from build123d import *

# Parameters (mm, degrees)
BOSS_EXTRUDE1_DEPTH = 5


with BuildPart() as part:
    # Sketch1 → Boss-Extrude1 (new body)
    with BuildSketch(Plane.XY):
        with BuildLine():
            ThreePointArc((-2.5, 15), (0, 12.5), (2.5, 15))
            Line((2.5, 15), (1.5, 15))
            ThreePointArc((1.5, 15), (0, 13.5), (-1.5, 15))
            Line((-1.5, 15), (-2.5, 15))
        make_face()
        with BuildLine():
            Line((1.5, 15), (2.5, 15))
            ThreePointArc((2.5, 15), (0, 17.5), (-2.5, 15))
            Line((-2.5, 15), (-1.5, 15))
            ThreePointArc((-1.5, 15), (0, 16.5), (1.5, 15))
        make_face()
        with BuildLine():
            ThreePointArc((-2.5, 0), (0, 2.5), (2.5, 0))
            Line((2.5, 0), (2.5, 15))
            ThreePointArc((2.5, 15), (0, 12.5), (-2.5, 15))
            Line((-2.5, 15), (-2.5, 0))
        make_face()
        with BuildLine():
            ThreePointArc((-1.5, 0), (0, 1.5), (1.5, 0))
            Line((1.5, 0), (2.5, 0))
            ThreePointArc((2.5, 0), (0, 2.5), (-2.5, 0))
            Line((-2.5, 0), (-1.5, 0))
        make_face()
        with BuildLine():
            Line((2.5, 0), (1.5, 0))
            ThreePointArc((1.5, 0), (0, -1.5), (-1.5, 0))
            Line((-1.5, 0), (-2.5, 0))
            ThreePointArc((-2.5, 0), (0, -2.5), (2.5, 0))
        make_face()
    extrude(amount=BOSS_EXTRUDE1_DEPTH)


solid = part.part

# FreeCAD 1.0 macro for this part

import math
import FreeCAD as App
import Part
import Sketcher
Q = App.Units.Quantity

doc = App.newDocument("Part")
body = doc.addObject("PartDesign::Body", "Body")

# Sketch on XY plane
sketch1 = doc.addObject("Sketcher::SketchObject", "Sketch")
body.addObject(sketch1)
sketch1.AttachmentSupport = (doc.XY_Plane, [""])
sketch1.MapMode = "FlatFace"
sketch1.addGeometry(Part.LineSegment(App.Vector(-2.5, 15, 0), App.Vector(-2.5, 0, 0)), False)
sketch1.addGeometry(Part.ArcOfCircle(Part.Circle(App.Vector(0, 0, 0), App.Vector(0, 0, 1), 2.5), math.radians(180), math.radians(360)), False)
sketch1.addGeometry(Part.LineSegment(App.Vector(2.5, 0, 0), App.Vector(2.5, 15, 0)), False)
sketch1.addGeometry(Part.ArcOfCircle(Part.Circle(App.Vector(0, 15, 0), App.Vector(0, 0, 1), 2.5), math.radians(0), math.radians(180)), False)
sketch1.addGeometry(Part.Circle(App.Vector(0, 0, 0), App.Vector(0, 0, 1), 1.5), False)
sketch1.addGeometry(Part.Circle(App.Vector(0, 15, 0), App.Vector(0, 0, 1), 1.5), False)
sketch1.addConstraint(Sketcher.Constraint("Tangent", 0, 2, 1, 1))
sketch1.addConstraint(Sketcher.Constraint("Tangent", 1, 2, 2, 1))
sketch1.addConstraint(Sketcher.Constraint("Tangent", 2, 2, 3, 1))
sketch1.addConstraint(Sketcher.Constraint("Tangent", 3, 2, 0, 1))
sketch1.addConstraint(Sketcher.Constraint("Vertical", 0))
sketch1.addConstraint(Sketcher.Constraint("Vertical", 2))
sketch1.addConstraint(Sketcher.Constraint("Coincident", 1, 3, -1, 1))
sketch1.addConstraint(Sketcher.Constraint("Coincident", 4, 3, -1, 1))
sketch1.addConstraint(Sketcher.Constraint("Coincident", 5, 3, 3, 3))
sketch1.addConstraint(Sketcher.Constraint("Equal", 4, 5))
sketch1.addConstraint(Sketcher.Constraint("Diameter", 4, Q("3 mm")))
sketch1.addConstraint(Sketcher.Constraint("Radius", 1, Q("2.5 mm")))
sketch1.addConstraint(Sketcher.Constraint("DistanceY", 0, 2, 0, 1, Q("15 mm")))
pad1 = doc.addObject("PartDesign::Pad", "Pad")
body.addObject(pad1)
pad1.Profile = sketch1
pad1.Length = 5

doc.recompute()
